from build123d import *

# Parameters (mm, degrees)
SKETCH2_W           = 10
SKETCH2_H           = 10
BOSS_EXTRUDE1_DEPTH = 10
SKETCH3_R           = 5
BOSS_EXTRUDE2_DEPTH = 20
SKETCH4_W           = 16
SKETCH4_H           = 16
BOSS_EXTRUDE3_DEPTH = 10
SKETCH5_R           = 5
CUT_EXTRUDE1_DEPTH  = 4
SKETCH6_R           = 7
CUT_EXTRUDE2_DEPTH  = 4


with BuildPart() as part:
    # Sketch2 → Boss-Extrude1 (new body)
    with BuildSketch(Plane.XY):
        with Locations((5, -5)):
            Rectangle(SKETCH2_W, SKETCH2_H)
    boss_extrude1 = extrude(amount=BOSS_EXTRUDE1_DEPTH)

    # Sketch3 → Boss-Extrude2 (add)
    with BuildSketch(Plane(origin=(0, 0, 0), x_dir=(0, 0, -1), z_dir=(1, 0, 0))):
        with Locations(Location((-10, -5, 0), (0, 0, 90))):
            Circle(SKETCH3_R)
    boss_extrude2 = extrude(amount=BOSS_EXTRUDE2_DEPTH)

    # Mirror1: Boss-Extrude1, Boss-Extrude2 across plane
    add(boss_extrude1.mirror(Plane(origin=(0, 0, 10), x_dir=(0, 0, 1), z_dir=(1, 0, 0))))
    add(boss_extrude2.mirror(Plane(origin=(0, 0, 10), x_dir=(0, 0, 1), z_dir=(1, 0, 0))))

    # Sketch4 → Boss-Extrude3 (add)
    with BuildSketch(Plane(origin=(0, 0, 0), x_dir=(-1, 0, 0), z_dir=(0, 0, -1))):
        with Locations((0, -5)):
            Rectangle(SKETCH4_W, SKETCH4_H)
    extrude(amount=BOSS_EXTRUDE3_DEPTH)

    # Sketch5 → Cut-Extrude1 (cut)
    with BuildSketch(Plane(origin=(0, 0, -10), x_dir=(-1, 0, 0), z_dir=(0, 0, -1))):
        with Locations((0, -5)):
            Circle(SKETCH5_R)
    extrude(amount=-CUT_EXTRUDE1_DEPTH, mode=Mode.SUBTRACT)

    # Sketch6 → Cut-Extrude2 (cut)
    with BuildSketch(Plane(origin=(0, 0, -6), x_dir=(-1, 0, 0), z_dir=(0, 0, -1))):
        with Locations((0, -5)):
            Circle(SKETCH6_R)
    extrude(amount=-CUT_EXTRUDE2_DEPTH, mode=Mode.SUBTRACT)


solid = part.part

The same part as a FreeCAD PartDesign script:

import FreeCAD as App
import Part
import Sketcher
Q = App.Units.Quantity


def add_polygon(sketch, points):
    """Adds a closed chain of lines whose ends are joined by coincident constraints."""
    first, n = sketch.GeometryCount, len(points)
    for a, b in zip(points, points[1:] + points[:1]):
        sketch.addGeometry(Part.LineSegment(App.Vector(*a, 0), App.Vector(*b, 0)), False)
    for i in range(n):
        sketch.addConstraint(Sketcher.Constraint("Coincident", first + i, 2, first + (i + 1) % n, 1))

doc = App.newDocument("Part")
params = doc.addObject("Spreadsheet::Sheet", "Params")
for row, (alias, value) in enumerate([
    ("sketch1_width", "10 mm"),
    ("pad1_length", "10 mm"),
    ("sketch2_diameter", "10 mm"),
    ("pad2_length", "20 mm"),
    ("sketch3_width", "16 mm"),
    ("pad3_length", "10 mm"),
    ("sketch4_diameter", "10 mm"),
    ("pocket1_length", "4 mm"),
    ("sketch5_diameter", "14 mm"),
    ("pocket2_length", "4 mm"),
], start=1):
    params.set(f"A{row}", alias)
    params.set(f"B{row}", "=" + value)
    params.setAlias(f"B{row}", alias)

body = doc.addObject("PartDesign::Body", "Body")

sketch1 = body.newObject("Sketcher::SketchObject", "Sketch")
sketch1.AttachmentSupport = (doc.getObject("XY_Plane"), [""])
sketch1.MapMode = "FlatFace"
add_polygon(sketch1, [(0, 0), (0, -10), (10, -10), (10, 0)])
sketch1.addConstraint([
    Sketcher.Constraint("Vertical", 0),
    Sketcher.Constraint("Horizontal", 1),
    Sketcher.Constraint("Vertical", 2),
    Sketcher.Constraint("Horizontal", 3),
    Sketcher.Constraint("Coincident", 3, 2, -1, 1),
    Sketcher.Constraint("Equal", 3, 0),
    Sketcher.Constraint("DistanceX", 1, 1, 1, 2, Q("10 mm")),
])
sketch1.setExpression("Constraints[10]", "Params.sketch1_width")
pad1 = body.newObject("PartDesign::Pad", "Pad")
pad1.Profile = sketch1
pad1.setExpression("Length", "Params.pad1_length")

sketch2 = body.newObject("Sketcher::SketchObject", "Sketch001")
sketch2.AttachmentSupport = (doc.getObject("YZ_Plane"), [""])
sketch2.MapMode = "FlatFace"
sketch2.addGeometry(Part.Circle(App.Vector(-5, 10, 0), App.Vector(0, 0, 1), 5), False)
sketch2.addConstraint([
    Sketcher.Constraint("Diameter", 0, Q("10 mm")),
    Sketcher.Constraint("DistanceX", 0, 3, -1, 1, Q("5 mm")),
    Sketcher.Constraint("DistanceY", -1, 1, 0, 3, Q("10 mm")),
])
sketch2.setExpression("Constraints[0]", "Params.sketch2_diameter")
pad2 = body.newObject("PartDesign::Pad", "Pad001")
pad2.Profile = sketch2
pad2.setExpression("Length", "Params.pad2_length")
doc.recompute()

mirrored = body.newObject("PartDesign::Mirrored", "Mirrored")
mirrored.Originals = [pad1, pad2]
mirrored.MirrorPlane = (doc.getObject("YZ_Plane"), [""])
body.Tip = mirrored

sketch3 = body.newObject("Sketcher::SketchObject", "Sketch002")
sketch3.AttachmentSupport = (doc.getObject("XY_Plane"), [""])
sketch3.MapMode = "FlatFace"
add_polygon(sketch3, [(8, 3), (8, -13), (-8, -13), (-8, 3)])
sketch3.addConstraint([
    Sketcher.Constraint("Vertical", 0),
    Sketcher.Constraint("Horizontal", 1),
    Sketcher.Constraint("Vertical", 2),
    Sketcher.Constraint("Horizontal", 3),
    Sketcher.Constraint("Equal", 3, 0),
    Sketcher.Constraint("DistanceX", 1, 2, 1, 1, Q("16 mm")),
    Sketcher.Constraint("DistanceX", -1, 1, 0, 2, Q("8 mm")),
    Sketcher.Constraint("DistanceY", 0, 2, -1, 1, Q("13 mm")),
])
sketch3.setExpression("Constraints[9]", "Params.sketch3_width")
pad3 = body.newObject("PartDesign::Pad", "Pad002")
pad3.Profile = sketch3
pad3.setExpression("Length", "Params.pad3_length")
pad3.Reversed = True

sketch4 = body.newObject("Sketcher::SketchObject", "Sketch003")
sketch4.AttachmentSupport = (doc.getObject("XY_Plane"), [""])
sketch4.MapMode = "FlatFace"
sketch4.AttachmentOffset = App.Placement(App.Vector(0, 0, -10), App.Rotation())
sketch4.addGeometry(Part.Circle(App.Vector(0, -5, 0), App.Vector(0, 0, 1), 5), False)
sketch4.addConstraint([
    Sketcher.Constraint("PointOnObject", 0, 3, -2),
    Sketcher.Constraint("Diameter", 0, Q("10 mm")),
    Sketcher.Constraint("DistanceY", 0, 3, -1, 1, Q("5 mm")),
])
sketch4.setExpression("Constraints[1]", "Params.sketch4_diameter")
pocket1 = body.newObject("PartDesign::Pocket", "Pocket")
pocket1.Profile = sketch4
pocket1.setExpression("Length", "Params.pocket1_length")
pocket1.Reversed = True

sketch5 = body.newObject("Sketcher::SketchObject", "Sketch004")
sketch5.AttachmentSupport = (doc.getObject("XY_Plane"), [""])
sketch5.MapMode = "FlatFace"
sketch5.AttachmentOffset = App.Placement(App.Vector(0, 0, -6), App.Rotation())
sketch5.addGeometry(Part.Circle(App.Vector(0, -5, 0), App.Vector(0, 0, 1), 7), False)
sketch5.addConstraint([
    Sketcher.Constraint("PointOnObject", 0, 3, -2),
    Sketcher.Constraint("Diameter", 0, Q("14 mm")),
    Sketcher.Constraint("DistanceY", 0, 3, -1, 1, Q("5 mm")),
])
sketch5.setExpression("Constraints[1]", "Params.sketch5_diameter")
pocket2 = body.newObject("PartDesign::Pocket", "Pocket001")
pocket2.Profile = sketch5
pocket2.setExpression("Length", "Params.pocket2_length")
pocket2.Reversed = True

doc.recompute()
